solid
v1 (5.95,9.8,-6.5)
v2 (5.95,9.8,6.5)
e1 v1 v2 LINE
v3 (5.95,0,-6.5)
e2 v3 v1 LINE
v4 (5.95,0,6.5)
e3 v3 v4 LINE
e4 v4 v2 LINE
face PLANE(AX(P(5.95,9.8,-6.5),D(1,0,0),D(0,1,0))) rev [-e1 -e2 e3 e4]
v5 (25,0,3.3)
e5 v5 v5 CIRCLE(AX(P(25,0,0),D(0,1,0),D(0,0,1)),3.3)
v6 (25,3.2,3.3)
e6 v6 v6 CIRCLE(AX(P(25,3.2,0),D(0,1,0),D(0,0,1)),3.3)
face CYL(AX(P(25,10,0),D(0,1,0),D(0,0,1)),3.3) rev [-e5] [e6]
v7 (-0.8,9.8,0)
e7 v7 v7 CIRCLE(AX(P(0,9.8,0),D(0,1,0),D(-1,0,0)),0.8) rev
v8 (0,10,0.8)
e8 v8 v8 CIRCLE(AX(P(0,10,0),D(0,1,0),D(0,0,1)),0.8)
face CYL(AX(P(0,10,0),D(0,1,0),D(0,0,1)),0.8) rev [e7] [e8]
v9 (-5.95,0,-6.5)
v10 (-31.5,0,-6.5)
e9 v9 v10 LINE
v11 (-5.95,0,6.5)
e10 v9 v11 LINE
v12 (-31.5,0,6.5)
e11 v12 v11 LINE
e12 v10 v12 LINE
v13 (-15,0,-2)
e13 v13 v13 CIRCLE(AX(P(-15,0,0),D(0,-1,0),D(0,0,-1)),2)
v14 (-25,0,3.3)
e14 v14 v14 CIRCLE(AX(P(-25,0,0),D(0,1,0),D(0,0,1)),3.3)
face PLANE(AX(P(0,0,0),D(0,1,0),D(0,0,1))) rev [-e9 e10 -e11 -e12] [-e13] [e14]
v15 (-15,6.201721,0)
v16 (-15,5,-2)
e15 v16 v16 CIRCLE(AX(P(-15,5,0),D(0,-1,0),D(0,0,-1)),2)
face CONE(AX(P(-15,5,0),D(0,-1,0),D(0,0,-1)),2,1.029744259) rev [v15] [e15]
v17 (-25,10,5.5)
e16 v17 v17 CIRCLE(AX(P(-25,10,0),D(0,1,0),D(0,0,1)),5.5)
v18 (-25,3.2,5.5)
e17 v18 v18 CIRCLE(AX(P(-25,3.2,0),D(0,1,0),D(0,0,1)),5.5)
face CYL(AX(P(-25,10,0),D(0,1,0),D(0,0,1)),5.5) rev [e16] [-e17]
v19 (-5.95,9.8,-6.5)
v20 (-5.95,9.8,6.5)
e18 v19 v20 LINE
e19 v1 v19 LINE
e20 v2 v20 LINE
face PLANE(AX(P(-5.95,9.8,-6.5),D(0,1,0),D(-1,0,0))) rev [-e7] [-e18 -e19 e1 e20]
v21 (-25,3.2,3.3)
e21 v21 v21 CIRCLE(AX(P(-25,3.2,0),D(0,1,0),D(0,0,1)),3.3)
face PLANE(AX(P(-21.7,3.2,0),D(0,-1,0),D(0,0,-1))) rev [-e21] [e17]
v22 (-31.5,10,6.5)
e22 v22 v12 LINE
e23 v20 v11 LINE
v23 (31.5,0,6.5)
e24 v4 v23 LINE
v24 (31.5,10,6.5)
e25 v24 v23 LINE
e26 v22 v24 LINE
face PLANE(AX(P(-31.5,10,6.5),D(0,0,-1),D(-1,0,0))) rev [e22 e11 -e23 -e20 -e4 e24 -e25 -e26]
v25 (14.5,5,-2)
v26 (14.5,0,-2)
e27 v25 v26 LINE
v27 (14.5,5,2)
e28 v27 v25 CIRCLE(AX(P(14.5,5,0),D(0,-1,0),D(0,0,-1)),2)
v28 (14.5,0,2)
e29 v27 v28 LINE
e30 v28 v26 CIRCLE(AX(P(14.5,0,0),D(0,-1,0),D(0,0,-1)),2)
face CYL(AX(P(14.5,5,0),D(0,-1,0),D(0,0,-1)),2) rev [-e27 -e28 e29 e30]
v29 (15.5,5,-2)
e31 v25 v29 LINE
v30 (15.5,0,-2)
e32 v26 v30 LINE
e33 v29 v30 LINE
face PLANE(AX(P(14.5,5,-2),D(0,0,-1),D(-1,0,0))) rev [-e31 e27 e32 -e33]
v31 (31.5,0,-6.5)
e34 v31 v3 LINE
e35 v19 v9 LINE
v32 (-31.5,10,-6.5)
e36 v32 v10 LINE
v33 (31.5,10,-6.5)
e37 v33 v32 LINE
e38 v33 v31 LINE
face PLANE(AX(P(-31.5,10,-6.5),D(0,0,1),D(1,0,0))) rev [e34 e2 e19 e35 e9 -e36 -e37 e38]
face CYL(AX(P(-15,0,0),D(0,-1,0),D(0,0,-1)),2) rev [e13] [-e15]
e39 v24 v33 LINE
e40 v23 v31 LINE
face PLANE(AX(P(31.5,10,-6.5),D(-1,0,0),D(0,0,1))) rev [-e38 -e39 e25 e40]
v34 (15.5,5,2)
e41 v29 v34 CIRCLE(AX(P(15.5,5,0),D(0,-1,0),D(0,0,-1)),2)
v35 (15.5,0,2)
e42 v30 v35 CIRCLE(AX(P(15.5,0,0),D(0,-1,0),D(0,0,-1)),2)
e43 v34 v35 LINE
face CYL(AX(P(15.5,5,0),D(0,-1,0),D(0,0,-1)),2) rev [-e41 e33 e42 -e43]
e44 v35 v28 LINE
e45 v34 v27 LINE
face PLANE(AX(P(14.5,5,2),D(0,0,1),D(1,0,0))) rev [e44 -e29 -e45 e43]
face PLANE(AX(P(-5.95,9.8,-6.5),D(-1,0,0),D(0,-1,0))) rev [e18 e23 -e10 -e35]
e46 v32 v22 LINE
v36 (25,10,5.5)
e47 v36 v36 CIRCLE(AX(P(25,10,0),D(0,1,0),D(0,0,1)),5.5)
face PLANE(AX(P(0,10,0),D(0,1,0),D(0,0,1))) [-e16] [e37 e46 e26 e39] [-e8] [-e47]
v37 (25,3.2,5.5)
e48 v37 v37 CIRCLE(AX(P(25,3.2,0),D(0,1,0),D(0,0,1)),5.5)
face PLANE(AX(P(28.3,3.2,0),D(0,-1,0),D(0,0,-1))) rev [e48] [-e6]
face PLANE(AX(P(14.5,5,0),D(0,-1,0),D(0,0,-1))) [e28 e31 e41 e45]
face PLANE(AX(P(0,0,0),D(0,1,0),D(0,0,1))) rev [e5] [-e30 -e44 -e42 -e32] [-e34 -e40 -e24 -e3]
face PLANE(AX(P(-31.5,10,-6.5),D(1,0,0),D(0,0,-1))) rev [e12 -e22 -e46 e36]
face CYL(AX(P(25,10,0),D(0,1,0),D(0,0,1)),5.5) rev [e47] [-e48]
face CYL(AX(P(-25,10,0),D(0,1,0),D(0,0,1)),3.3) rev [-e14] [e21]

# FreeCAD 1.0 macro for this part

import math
import FreeCAD as App
import Part
import Sketcher

doc = App.newDocument("Part")
body = doc.addObject("PartDesign::Body", "Body")

sketch1 = doc.addObject("Sketcher::SketchObject", "Sketch")
body.addObject(sketch1)
sketch1.AttachmentSupport = (doc.XZ_Plane, [""])
sketch1.MapMode = "FlatFace"
sketch1.addGeometry([
    Part.LineSegment(App.Vector(-32, -6, 0), App.Vector(-32, 6, 0)),
    Part.LineSegment(App.Vector(-32, 6, 0), App.Vector(32, 6, 0)),
    Part.LineSegment(App.Vector(32, 6, 0), App.Vector(32, -6, 0)),
    Part.LineSegment(App.Vector(32, -6, 0), App.Vector(-32, -6, 0)),
], False)
sketch1.addConstraint([
    Sketcher.Constraint("Coincident", 0, 2, 1, 1),
    Sketcher.Constraint("Coincident", 1, 2, 2, 1),
    Sketcher.Constraint("Coincident", 2, 2, 3, 1),
    Sketcher.Constraint("Coincident", 3, 2, 0, 1),
    Sketcher.Constraint("Vertical", 0),
    Sketcher.Constraint("Horizontal", 1),
    Sketcher.Constraint("Vertical", 2),
    Sketcher.Constraint("Horizontal", 3),
    Sketcher.Constraint("Symmetric", 0, 2, 2, 2, -1, 1),
    Sketcher.Constraint("DistanceX", 1, 1, 1, 2, 63.0),
    Sketcher.Constraint("DistanceY", 0, 1, 0, 2, 13.0),
])
pad1 = doc.addObject("PartDesign::Pad", "Pad")
body.addObject(pad1)
pad1.Profile = sketch1
pad1.Length = 10
pad1.Reversed = True

sketch2 = doc.addObject("Sketcher::SketchObject", "Sketch001")
body.addObject(sketch2)
sketch2.AttachmentSupport = (doc.XZ_Plane, [""])
sketch2.MapMode = "FlatFace"
sketch2.AttachmentOffset = App.Placement(App.Vector(0, 0, -10), App.Rotation())
sketch2.addGeometry([
    Part.Circle(App.Vector(-25, 0, 0), App.Vector(0, 0, 1), 3.3),
    Part.Circle(App.Vector(25, 0, 0), App.Vector(0, 0, 1), 3.3),
], False)
sketch2.addConstraint([
    Sketcher.Constraint("Equal", 0, 1),
    Sketcher.Constraint("Symmetric", 0, 3, 1, 3, -1, 1),
    Sketcher.Constraint("PointOnObject", 0, 3, -1),
    Sketcher.Constraint("Diameter", 0, 6.6),
    Sketcher.Constraint("DistanceX", 0, 3, -1, 1, 25.0),
])
doc.recompute()
hole = doc.addObject("PartDesign::Hole", "Hole")
body.addObject(hole)
hole.Profile = sketch2
hole.ThreadType = "None"
hole.Diameter = 6.6
hole.DepthType = "ThroughAll"
hole.HoleCutType = "Counterbore"
hole.HoleCutDiameter = 11
hole.HoleCutDepth = 6.8
hole.Reversed = True

sketch3 = doc.addObject("Sketcher::SketchObject", "Sketch002")
body.addObject(sketch3)
sketch3.AttachmentSupport = (doc.XZ_Plane, [""])
sketch3.MapMode = "FlatFace"
sketch3.addGeometry(Part.Circle(App.Vector(-15, 0, 0), App.Vector(0, 0, 1), 2), False)
sketch3.addConstraint([
    Sketcher.Constraint("PointOnObject", 0, 3, -1),
    Sketcher.Constraint("Diameter", 0, 4.0),
    Sketcher.Constraint("DistanceX", 0, 3, -1, 1, 15.0),
])
doc.recompute()
hole2 = doc.addObject("PartDesign::Hole", "Hole001")
body.addObject(hole2)
hole2.Profile = sketch3
hole2.ThreadType = "None"
hole2.Diameter = 4
hole2.DepthType = "Dimension"
hole2.Depth = 5
hole2.DrillPoint = "Angled"
hole2.DrillPointAngle = 118

sketch4 = doc.addObject("Sketcher::SketchObject", "Sketch003")
body.addObject(sketch4)
sketch4.AttachmentSupport = (doc.XZ_Plane, [""])
sketch4.MapMode = "FlatFace"
sketch4.addGeometry([
    Part.LineSegment(App.Vector(15.5, 2, 0), App.Vector(14.5, 2, 0)),
    Part.ArcOfCircle(Part.Circle(App.Vector(14.5, 0, 0), App.Vector(0, 0, 1), 2), math.radians(90), math.radians(270)),
    Part.LineSegment(App.Vector(14.5, -2, 0), App.Vector(15.5, -2, 0)),
    Part.ArcOfCircle(Part.Circle(App.Vector(15.5, 0, 0), App.Vector(0, 0, 1), 2), math.radians(-90), math.radians(90)),
], False)
sketch4.addConstraint([
    Sketcher.Constraint("Tangent", 0, 2, 1, 1),
    Sketcher.Constraint("Tangent", 1, 2, 2, 1),
    Sketcher.Constraint("Tangent", 2, 2, 3, 1),
    Sketcher.Constraint("Tangent", 3, 2, 0, 1),
    Sketcher.Constraint("Horizontal", 0),
    Sketcher.Constraint("Horizontal", 2),
    Sketcher.Constraint("PointOnObject", 1, 3, -1),
    Sketcher.Constraint("Radius", 1, 2.0),
    Sketcher.Constraint("DistanceX", 0, 2, 0, 1, 1.0),
    Sketcher.Constraint("DistanceX", -1, 1, 1, 3, 14.5),
])
pocket1 = doc.addObject("PartDesign::Pocket", "Pocket")
body.addObject(pocket1)
pocket1.Profile = sketch4
pocket1.Length = 5

sketch5 = doc.addObject("Sketcher::SketchObject", "Sketch004")
body.addObject(sketch5)
sketch5.AttachmentSupport = (doc.XZ_Plane, [""])
sketch5.MapMode = "FlatFace"
sketch5.AttachmentOffset = App.Placement(App.Vector(0, 0, -10), App.Rotation())
sketch5.addGeometry(Part.Circle(App.Vector(0, 0, 0), App.Vector(0, 0, 1), 0.8), False)
sketch5.addConstraint([
    Sketcher.Constraint("Coincident", 0, 3, -1, 1),
    Sketcher.Constraint("Diameter", 0, 1.6),
])
doc.recompute()
hole3 = doc.addObject("PartDesign::Hole", "Hole002")
body.addObject(hole3)
hole3.Profile = sketch5
hole3.ThreadType = "None"
hole3.Diameter = 1.6
hole3.DepthType = "ThroughAll"
hole3.Reversed = True

sketch6 = doc.addObject("Sketcher::SketchObject", "Sketch005")
body.addObject(sketch6)
sketch6.AttachmentSupport = (doc.XY_Plane, [""])
sketch6.MapMode = "FlatFace"
sketch6.AttachmentOffset = App.Placement(App.Vector(0, 0, 6.5), App.Rotation())
sketch6.addGeometry([
    Part.LineSegment(App.Vector(-6, 10, 0), App.Vector(-6, 0, 0)),
    Part.LineSegment(App.Vector(-6, 0, 0), App.Vector(6, 0, 0)),
    Part.LineSegment(App.Vector(6, 0, 0), App.Vector(6, 10, 0)),
    Part.LineSegment(App.Vector(6, 10, 0), App.Vector(-6, 10, 0)),
], False)
sketch6.addConstraint([
    Sketcher.Constraint("Coincident", 0, 2, 1, 1),
    Sketcher.Constraint("Coincident", 1, 2, 2, 1),
    Sketcher.Constraint("Coincident", 2, 2, 3, 1),
    Sketcher.Constraint("Coincident", 3, 2, 0, 1),
    Sketcher.Constraint("Vertical", 0),
    Sketcher.Constraint("Horizontal", 1),
    Sketcher.Constraint("Vertical", 2),
    Sketcher.Constraint("Horizontal", 3),
    Sketcher.Constraint("Symmetric", 0, 2, 1, 2, -1, 1),
    Sketcher.Constraint("DistanceX", 1, 1, 1, 2, 11.9),
    Sketcher.Constraint("DistanceY", 0, 2, 0, 1, 9.8),
])
pocket2 = doc.addObject("PartDesign::Pocket", "Pocket001")
body.addObject(pocket2)
pocket2.Profile = sketch6
pocket2.Type = "ThroughAll"

doc.recompute()
